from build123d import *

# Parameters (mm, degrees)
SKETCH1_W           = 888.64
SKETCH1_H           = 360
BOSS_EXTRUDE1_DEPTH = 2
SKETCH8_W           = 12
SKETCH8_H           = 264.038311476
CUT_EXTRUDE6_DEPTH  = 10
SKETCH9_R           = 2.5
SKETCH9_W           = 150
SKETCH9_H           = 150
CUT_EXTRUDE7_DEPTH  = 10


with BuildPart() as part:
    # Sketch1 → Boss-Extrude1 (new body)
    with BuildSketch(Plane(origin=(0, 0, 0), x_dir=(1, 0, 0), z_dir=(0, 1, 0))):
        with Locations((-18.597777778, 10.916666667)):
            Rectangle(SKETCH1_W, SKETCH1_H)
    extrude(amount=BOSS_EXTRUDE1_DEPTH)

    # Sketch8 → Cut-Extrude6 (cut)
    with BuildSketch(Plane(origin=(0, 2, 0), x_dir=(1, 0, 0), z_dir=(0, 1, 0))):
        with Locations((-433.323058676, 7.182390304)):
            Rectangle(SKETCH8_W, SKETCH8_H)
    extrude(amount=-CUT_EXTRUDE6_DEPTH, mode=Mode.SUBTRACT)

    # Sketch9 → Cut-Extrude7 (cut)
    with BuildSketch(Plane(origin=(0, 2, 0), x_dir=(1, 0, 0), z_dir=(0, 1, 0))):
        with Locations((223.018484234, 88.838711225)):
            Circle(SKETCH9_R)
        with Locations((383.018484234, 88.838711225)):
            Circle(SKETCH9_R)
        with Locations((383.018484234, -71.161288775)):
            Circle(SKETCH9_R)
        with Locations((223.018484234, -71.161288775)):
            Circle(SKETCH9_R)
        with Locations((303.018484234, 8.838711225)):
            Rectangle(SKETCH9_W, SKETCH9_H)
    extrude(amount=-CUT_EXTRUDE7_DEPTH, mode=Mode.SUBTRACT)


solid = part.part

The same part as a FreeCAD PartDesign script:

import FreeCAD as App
import Part
import Sketcher

V = App.Vector


def add_polygon(sketch, points):
    """Adds a closed chain of lines whose ends are joined by coincident constraints."""
    first, n = sketch.GeometryCount, len(points)
    for a, b in zip(points, points[1:] + points[:1]):
        sketch.addGeometry(Part.LineSegment(App.Vector(*a, 0), App.Vector(*b, 0)), False)
    for i in range(n):
        sketch.addConstraint(Sketcher.Constraint("Coincident", first + i, 2, first + (i + 1) % n, 1))

doc = App.newDocument("Part")
body = doc.addObject("PartDesign::Body", "Body")

sketch1 = doc.addObject("Sketcher::SketchObject", "Sketch")
body.addObject(sketch1)
sketch1.AttachmentSupport = (doc.XZ_Plane, [""])
sketch1.MapMode = "FlatFace"
add_polygon(sketch1, [(-463, -191), (-463, 169), (426, 169), (426, -191)])
sketch1.addConstraint([
    Sketcher.Constraint("Vertical", 0),
    Sketcher.Constraint("Horizontal", 1),
    Sketcher.Constraint("Vertical", 2),
    Sketcher.Constraint("Horizontal", 3),
    Sketcher.Constraint("DistanceY", 0, 1, 0, 2, 360.0),
    Sketcher.Constraint("DistanceX", 1, 1, 1, 2, 888.64),
    Sketcher.Constraint("DistanceX", 0, 2, -1, 1, 462.917778),
    Sketcher.Constraint("DistanceY", -1, 1, 0, 2, 169.083333),
])
pad1 = doc.addObject("PartDesign::Pad", "Pad")
body.addObject(pad1)
pad1.Profile = sketch1
pad1.Length = 2
pad1.Reversed = True

sketch2 = doc.addObject("Sketcher::SketchObject", "Sketch001")
body.addObject(sketch2)
sketch2.AttachmentSupport = (doc.XZ_Plane, [""])
sketch2.MapMode = "FlatFace"
sketch2.AttachmentOffset = App.Placement(V(0, 0, -2), App.Rotation())
add_polygon(sketch2, [(-439, -139), (-439, 125), (-427, 125), (-427, -139)])
sketch2.addConstraint([
    Sketcher.Constraint("Vertical", 0),
    Sketcher.Constraint("Horizontal", 1),
    Sketcher.Constraint("Vertical", 2),
    Sketcher.Constraint("Horizontal", 3),
    Sketcher.Constraint("DistanceX", 1, 1, 1, 2, 12.0),
    Sketcher.Constraint("DistanceY", 0, 1, 0, 2, 264.038311),
    Sketcher.Constraint("DistanceX", 0, 2, -1, 1, 439.323059),
    Sketcher.Constraint("DistanceY", -1, 1, 0, 2, 124.836765),
])
pocket1 = doc.addObject("PartDesign::Pocket", "Pocket")
body.addObject(pocket1)
pocket1.Profile = sketch2
pocket1.Length = 10
pocket1.Reversed = True

sketch3 = doc.addObject("Sketcher::SketchObject", "Sketch002")
body.addObject(sketch3)
sketch3.AttachmentSupport = (doc.XZ_Plane, [""])
sketch3.MapMode = "FlatFace"
sketch3.AttachmentOffset = App.Placement(V(0, 0, -2), App.Rotation())
sketch3.addGeometry(Part.Circle(V(223, -88.8, 0), V(0, 0, 1), 2.5), False)
sketch3.addGeometry(Part.Circle(V(383, -88.8, 0), V(0, 0, 1), 2.5), False)
sketch3.addGeometry(Part.Circle(V(383, 71.2, 0), V(0, 0, 1), 2.5), False)
sketch3.addGeometry(Part.Circle(V(223, 71.2, 0), V(0, 0, 1), 2.5), False)
add_polygon(sketch3, [(228, -83.8), (228, 66.2), (378, 66.2), (378, -83.8)])
sketch3.addConstraint([
    Sketcher.Constraint("Vertical", 4),
    Sketcher.Constraint("Horizontal", 5),
    Sketcher.Constraint("Vertical", 6),
    Sketcher.Constraint("Horizontal", 7),
    Sketcher.Constraint("Equal", 0, 1),
    Sketcher.Constraint("Equal", 1, 2),
    Sketcher.Constraint("Equal", 2, 3),
    Sketcher.Constraint("Horizontal", 0, 3, 1, 3),
    Sketcher.Constraint("Horizontal", 2, 3, 3, 3),
    Sketcher.Constraint("Vertical", 1, 3, 2, 3),
    Sketcher.Constraint("Vertical", 0, 3, 3, 3),
    Sketcher.Constraint("Equal", 7, 4),
    Sketcher.Constraint("Diameter", 0, 5.0),
    Sketcher.Constraint("DistanceX", 5, 1, 5, 2, 150.0),
    Sketcher.Constraint("DistanceX", 0, 3, 1, 3, 160.0),
    Sketcher.Constraint("DistanceY", 1, 3, 2, 3, 160.0),
    Sketcher.Constraint("DistanceX", 3, 3, 4, 2, 5.0),
    Sketcher.Constraint("DistanceY", 4, 2, 3, 3, 5.0),
    Sketcher.Constraint("DistanceY", 0, 3, -1, 1, 88.838711),
    Sketcher.Constraint("DistanceX", -1, 1, 0, 3, 223.018484),
])
pocket2 = doc.addObject("PartDesign::Pocket", "Pocket001")
body.addObject(pocket2)
pocket2.Profile = sketch3
pocket2.Length = 10
pocket2.Reversed = True

doc.recompute()
